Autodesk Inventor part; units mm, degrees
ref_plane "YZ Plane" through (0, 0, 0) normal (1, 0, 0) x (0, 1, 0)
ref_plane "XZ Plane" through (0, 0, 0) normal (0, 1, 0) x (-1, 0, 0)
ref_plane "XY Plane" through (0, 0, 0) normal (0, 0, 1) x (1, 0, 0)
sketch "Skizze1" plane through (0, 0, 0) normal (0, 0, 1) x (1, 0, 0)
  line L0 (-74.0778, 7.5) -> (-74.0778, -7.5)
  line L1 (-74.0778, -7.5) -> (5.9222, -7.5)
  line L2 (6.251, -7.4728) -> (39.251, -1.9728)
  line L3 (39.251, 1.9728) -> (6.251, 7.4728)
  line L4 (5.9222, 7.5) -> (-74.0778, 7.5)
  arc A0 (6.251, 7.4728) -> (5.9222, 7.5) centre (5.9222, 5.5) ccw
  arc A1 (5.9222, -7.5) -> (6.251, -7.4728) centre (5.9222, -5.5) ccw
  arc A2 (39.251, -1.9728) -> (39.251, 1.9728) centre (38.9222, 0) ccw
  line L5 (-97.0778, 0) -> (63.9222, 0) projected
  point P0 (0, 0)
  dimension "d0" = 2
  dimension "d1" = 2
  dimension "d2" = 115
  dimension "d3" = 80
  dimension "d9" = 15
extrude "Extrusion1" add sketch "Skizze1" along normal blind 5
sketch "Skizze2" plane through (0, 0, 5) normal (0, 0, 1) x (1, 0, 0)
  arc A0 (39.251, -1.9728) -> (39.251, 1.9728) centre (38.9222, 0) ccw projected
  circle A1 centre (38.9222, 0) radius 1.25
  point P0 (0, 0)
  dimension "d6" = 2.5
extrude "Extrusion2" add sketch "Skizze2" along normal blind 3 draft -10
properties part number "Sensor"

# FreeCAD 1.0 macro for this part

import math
import FreeCAD as App
import Part
import Sketcher

V = App.Vector
Q = App.Units.Quantity

doc = App.newDocument("Part")
body = doc.addObject("PartDesign::Body", "Body")

sketch1 = body.newObject("Sketcher::SketchObject", "Sketch")
sketch1.AttachmentSupport = (doc.getObject("XY_Plane"), [""])
sketch1.MapMode = "FlatFace"
sketch1.addGeometry(Part.LineSegment(V(5.9222, 7.5, 0), V(-74.0778, 7.5, 0)), False)
sketch1.addGeometry(Part.LineSegment(V(-74.0778, 7.5, 0), V(-74.0778, -7.5, 0)), False)
sketch1.addGeometry(Part.LineSegment(V(-74.0778, -7.5, 0), V(5.9222, -7.5, 0)), False)
sketch1.addGeometry(Part.ArcOfCircle(Part.Circle(V(5.922125, -5.498191, 0), V(0, 0, 1), 2.001809), math.radians(-89.99786), math.radians(-80.544082)), False)
sketch1.addGeometry(Part.LineSegment(V(6.251, -7.4728, 0), V(39.251, -1.9728, 0)), False)
sketch1.addGeometry(Part.ArcOfCircle(Part.Circle(V(38.9222, 0, 0), V(0, 0, 1), 2.000012), math.radians(-80.537678), math.radians(80.537678)), False)
sketch1.addGeometry(Part.LineSegment(V(39.251, 1.9728, 0), V(6.251, 7.4728, 0)), False)
sketch1.addGeometry(Part.ArcOfCircle(Part.Circle(V(5.922423, 5.501794, 0), V(0, 0, 1), 1.998206), math.radians(80.535538), math.radians(90.006404)), False)
sketch1.addConstraint(Sketcher.Constraint("Coincident", 0, 2, 1, 1))
sketch1.addConstraint(Sketcher.Constraint("Coincident", 1, 2, 2, 1))
sketch1.addConstraint(Sketcher.Constraint("Tangent", 2, 2, 3, 1))
sketch1.addConstraint(Sketcher.Constraint("Tangent", 3, 2, 4, 1))
sketch1.addConstraint(Sketcher.Constraint("Tangent", 4, 2, 5, 1))
sketch1.addConstraint(Sketcher.Constraint("Tangent", 5, 2, 6, 1))
sketch1.addConstraint(Sketcher.Constraint("Tangent", 6, 2, 7, 1))
sketch1.addConstraint(Sketcher.Constraint("Tangent", 7, 2, 0, 1))
sketch1.addConstraint(Sketcher.Constraint("Horizontal", 0))
sketch1.addConstraint(Sketcher.Constraint("Vertical", 1))
sketch1.addConstraint(Sketcher.Constraint("Horizontal", 2))
sketch1.addConstraint(Sketcher.Constraint("Symmetric", 4, 2, 5, 2, -1))
sketch1.addConstraint(Sketcher.Constraint("Symmetric", 2, 2, 7, 2, -1))
sketch1.addConstraint(Sketcher.Constraint("Radius", 5, Q("2 mm")))
sketch1.addConstraint(Sketcher.Constraint("DistanceX", 0, 2, 0, 1, Q("80 mm")))
sketch1.addConstraint(Sketcher.Constraint("DistanceY", 1, 2, 1, 1, Q("15 mm")))
sketch1.addConstraint(Sketcher.Constraint("DistanceX", 3, 3, 5, 3, Q("33 mm")))
sketch1.addConstraint(Sketcher.Constraint("DistanceY", 3, 3, 7, 3, Q("11 mm")))
sketch1.addConstraint(Sketcher.Constraint("DistanceX", -1, 1, 3, 2, Q("6.251 mm")))
pad1 = body.newObject("PartDesign::Pad", "Pad")
pad1.Profile = sketch1
pad1.Length = 5

sketch2 = body.newObject("Sketcher::SketchObject", "Sketch001")
sketch2.AttachmentSupport = (doc.getObject("XY_Plane"), [""])
sketch2.MapMode = "FlatFace"
sketch2.AttachmentOffset = App.Placement(V(0, 0, 5), App.Rotation())
sketch2.addGeometry(Part.Circle(V(38.9222, 0, 0), V(0, 0, 1), 1.25), False)
sketch2.addConstraint(Sketcher.Constraint("PointOnObject", 0, 3, -1))
sketch2.addConstraint(Sketcher.Constraint("Diameter", 0, Q("2.5 mm")))
sketch2.addConstraint(Sketcher.Constraint("DistanceX", -1, 1, 0, 3, Q("38.9222 mm")))
pad2 = body.newObject("PartDesign::Pad", "Pad001")
pad2.Profile = sketch2
pad2.Length = 3
pad2.TaperAngle = -10

doc.recompute()
